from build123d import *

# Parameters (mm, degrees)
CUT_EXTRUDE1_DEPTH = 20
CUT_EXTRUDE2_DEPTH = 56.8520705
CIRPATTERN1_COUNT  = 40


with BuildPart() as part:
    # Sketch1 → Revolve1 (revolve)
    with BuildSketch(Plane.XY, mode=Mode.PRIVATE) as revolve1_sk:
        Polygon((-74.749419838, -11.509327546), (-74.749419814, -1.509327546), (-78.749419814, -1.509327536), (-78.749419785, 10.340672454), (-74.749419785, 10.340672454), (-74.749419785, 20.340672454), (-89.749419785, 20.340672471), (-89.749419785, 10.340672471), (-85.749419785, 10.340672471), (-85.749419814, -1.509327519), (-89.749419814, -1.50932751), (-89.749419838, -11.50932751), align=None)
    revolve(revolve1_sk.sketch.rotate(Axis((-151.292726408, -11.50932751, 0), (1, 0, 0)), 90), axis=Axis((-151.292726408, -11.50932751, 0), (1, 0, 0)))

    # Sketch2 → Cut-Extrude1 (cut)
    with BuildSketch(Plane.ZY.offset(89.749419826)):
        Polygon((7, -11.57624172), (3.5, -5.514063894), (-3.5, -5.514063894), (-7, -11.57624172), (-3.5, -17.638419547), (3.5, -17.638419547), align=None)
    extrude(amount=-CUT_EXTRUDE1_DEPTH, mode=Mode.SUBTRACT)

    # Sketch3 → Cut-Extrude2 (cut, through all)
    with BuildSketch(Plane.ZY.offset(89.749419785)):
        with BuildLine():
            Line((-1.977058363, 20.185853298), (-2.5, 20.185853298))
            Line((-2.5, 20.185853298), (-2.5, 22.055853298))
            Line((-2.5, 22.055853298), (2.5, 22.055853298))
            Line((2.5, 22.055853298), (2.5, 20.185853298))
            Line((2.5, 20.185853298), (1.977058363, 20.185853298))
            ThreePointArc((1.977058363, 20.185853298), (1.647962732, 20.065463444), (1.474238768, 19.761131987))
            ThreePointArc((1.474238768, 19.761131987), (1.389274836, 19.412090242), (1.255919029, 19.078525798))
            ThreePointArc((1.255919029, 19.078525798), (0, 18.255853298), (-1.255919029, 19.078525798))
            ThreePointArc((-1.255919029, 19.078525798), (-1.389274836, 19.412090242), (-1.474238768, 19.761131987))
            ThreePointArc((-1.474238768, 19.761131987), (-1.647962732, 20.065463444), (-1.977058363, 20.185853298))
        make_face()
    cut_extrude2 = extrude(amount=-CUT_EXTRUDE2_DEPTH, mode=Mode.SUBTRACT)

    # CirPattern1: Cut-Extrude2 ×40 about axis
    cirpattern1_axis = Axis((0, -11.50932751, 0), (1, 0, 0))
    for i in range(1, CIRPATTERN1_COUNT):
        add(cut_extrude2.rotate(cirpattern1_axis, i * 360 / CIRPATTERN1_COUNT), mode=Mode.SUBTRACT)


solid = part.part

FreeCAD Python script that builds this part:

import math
import FreeCAD as App
import Part
import Sketcher
Q = App.Units.Quantity


def add_polygon(sketch, points):
    """Adds a closed chain of lines whose ends are joined by coincident constraints."""
    first, n = sketch.GeometryCount, len(points)
    for a, b in zip(points, points[1:] + points[:1]):
        sketch.addGeometry(Part.LineSegment(App.Vector(*a, 0), App.Vector(*b, 0)), False)
    for i in range(n):
        sketch.addConstraint(Sketcher.Constraint("Coincident", first + i, 2, first + (i + 1) % n, 1))

doc = App.newDocument("Part")
body = doc.addObject("PartDesign::Body", "Body")

# Sketch on XY plane
sketch1 = body.newObject("Sketcher::SketchObject", "Sketch")
sketch1.AttachmentSupport = (doc.getObject("XY_Plane"), [""])
sketch1.MapMode = "FlatFace"
add_polygon(sketch1, [(-74.74942, -11.509328), (-74.74942, -1.509328), (-78.74942, -1.509328), (-78.74942, 10.340672), (-74.74942, 10.340672), (-74.74942, 20.340672), (-89.74942, 20.340672), (-89.74942, 10.340672), (-85.74942, 10.340672), (-85.74942, -1.509328), (-89.74942, -1.509328), (-89.74942, -11.509328)])  # lines 0-11
sketch1.addGeometry(Part.LineSegment(App.Vector(-89.74942, -11.509328, 0), App.Vector(-74.74942, -11.509328, 0)), True)  # axis
sketch1.addConstraint(Sketcher.Constraint("Vertical", 0))
sketch1.addConstraint(Sketcher.Constraint("Horizontal", 1))
sketch1.addConstraint(Sketcher.Constraint("Vertical", 2))
sketch1.addConstraint(Sketcher.Constraint("Horizontal", 3))
sketch1.addConstraint(Sketcher.Constraint("Vertical", 4))
sketch1.addConstraint(Sketcher.Constraint("Horizontal", 5))
sketch1.addConstraint(Sketcher.Constraint("Vertical", 6))
sketch1.addConstraint(Sketcher.Constraint("Horizontal", 7))
sketch1.addConstraint(Sketcher.Constraint("Vertical", 8))
sketch1.addConstraint(Sketcher.Constraint("Horizontal", 9))
sketch1.addConstraint(Sketcher.Constraint("Vertical", 10))
sketch1.addConstraint(Sketcher.Constraint("Horizontal", 11))
sketch1.addConstraint(Sketcher.Constraint("Horizontal", 12))
sketch1.addConstraint(Sketcher.Constraint("Coincident", 12, 1, 10, 2))
sketch1.addConstraint(Sketcher.Constraint("Horizontal", 3, 2, 6, 2))
sketch1.addConstraint(Sketcher.Constraint("Horizontal", 1, 2, 8, 2))
sketch1.addConstraint(Sketcher.Constraint("Vertical", 0, 2, 3, 2))
sketch1.addConstraint(Sketcher.Constraint("Vertical", 6, 2, 9, 2))
sketch1.addConstraint(Sketcher.Constraint("Vertical", 4, 2, 12, 2))
sketch1.addConstraint(Sketcher.Constraint("Equal", 3, 7))
sketch1.addConstraint(Sketcher.Constraint("Equal", 0, 4))
sketch1.addConstraint(Sketcher.Constraint("DistanceX", 1, 2, 1, 1, Q("4 mm")))
sketch1.addConstraint(Sketcher.Constraint("DistanceX", 5, 2, 5, 1, Q("15 mm")))
sketch1.addConstraint(Sketcher.Constraint("DistanceY", 0, 1, 0, 2, Q("10 mm")))
sketch1.addConstraint(Sketcher.Constraint("DistanceY", 2, 1, 2, 2, Q("11.85 mm")))
sketch1.addConstraint(Sketcher.Constraint("DistanceX", 0, 2, -1, 1, Q("74.74942 mm")))
sketch1.addConstraint(Sketcher.Constraint("DistanceY", 0, 2, -1, 1, Q("1.509328 mm")))
revolution = body.newObject("PartDesign::Revolution", "Revolution")
revolution.Profile = sketch1
revolution.ReferenceAxis = (sketch1, ["Axis0"])
revolution.Angle = 360

# Sketch on YZ plane
sketch2 = body.newObject("Sketcher::SketchObject", "Sketch001")
sketch2.AttachmentSupport = (doc.getObject("YZ_Plane"), [""])
sketch2.MapMode = "FlatFace"
sketch2.AttachmentOffset = App.Placement(App.Vector(0, 0, -89.74942), App.Rotation())
add_polygon(sketch2, [(-11.576242, 7), (-5.514064, 3.5), (-5.514064, -3.5), (-11.576242, -7), (-17.63842, -3.5), (-17.63842, 3.5)])  # lines 0-5
sketch2.addConstraint(Sketcher.Constraint("Vertical", 1))
sketch2.addConstraint(Sketcher.Constraint("Vertical", 4))
sketch2.addConstraint(Sketcher.Constraint("Symmetric", 2, 2, 5, 2, -1))
sketch2.addConstraint(Sketcher.Constraint("Parallel", 0, 3))
sketch2.addConstraint(Sketcher.Constraint("Parallel", 2, 5))
sketch2.addConstraint(Sketcher.Constraint("Horizontal", 1, 2, 3, 2))
sketch2.addConstraint(Sketcher.Constraint("Horizontal", 0, 2, 4, 2))
sketch2.addConstraint(Sketcher.Constraint("DistanceY", 1, 2, 1, 1, Q("7 mm")))
sketch2.addConstraint(Sketcher.Constraint("Angle", 0, Q("-30 deg")))
sketch2.addConstraint(Sketcher.Constraint("Distance", 0, Q("7 mm")))
sketch2.addConstraint(Sketcher.Constraint("DistanceX", 2, 2, -1, 1, Q("11.576242 mm")))
pocket1 = body.newObject("PartDesign::Pocket", "Pocket")
pocket1.Profile = sketch2
pocket1.Length = 20
pocket1.Reversed = True

# Sketch on YZ plane
sketch3 = body.newObject("Sketcher::SketchObject", "Sketch002")
sketch3.AttachmentSupport = (doc.getObject("YZ_Plane"), [""])
sketch3.MapMode = "FlatFace"
sketch3.AttachmentOffset = App.Placement(App.Vector(0, 0, -89.74942), App.Rotation())
sketch3.addGeometry(Part.LineSegment(App.Vector(20.185853, -2.5, 0), App.Vector(20.185853, -1.977058, 0)), False)
sketch3.addGeometry(Part.ArcOfCircle(Part.Circle(App.Vector(19.675853, -1.977058, 0), App.Vector(0, 0, 1), 0.51), math.radians(0), math.radians(80.374177)), False)
sketch3.addGeometry(Part.ArcOfCircle(Part.Circle(App.Vector(20.185853, 1.03, 0), App.Vector(0, 0, 1), 2.54), math.radians(-115.846123), math.radians(-99.625823)), False)
sketch3.addGeometry(Part.ArcOfCircle(Part.Circle(App.Vector(19.625853, 0, 0), App.Vector(0, 0, 1), 1.37), math.radians(113.547495), math.radians(246.452505)), False)
sketch3.addGeometry(Part.ArcOfCircle(Part.Circle(App.Vector(20.185853, -1.03, 0), App.Vector(0, 0, 1), 2.54), math.radians(99.625823), math.radians(115.846123)), False)
sketch3.addGeometry(Part.ArcOfCircle(Part.Circle(App.Vector(19.675853, 1.977058, 0), App.Vector(0, 0, 1), 0.51), math.radians(-80.374177), math.radians(0)), False)
sketch3.addGeometry(Part.LineSegment(App.Vector(20.185853, 1.977058, 0), App.Vector(20.185853, 2.5, 0)), False)
sketch3.addGeometry(Part.LineSegment(App.Vector(20.185853, 2.5, 0), App.Vector(22.055853, 2.5, 0)), False)
sketch3.addGeometry(Part.LineSegment(App.Vector(22.055853, 2.5, 0), App.Vector(22.055853, -2.5, 0)), False)
sketch3.addGeometry(Part.LineSegment(App.Vector(22.055853, -2.5, 0), App.Vector(20.185853, -2.5, 0)), False)
sketch3.addConstraint(Sketcher.Constraint("Tangent", 0, 2, 1, 1))
sketch3.addConstraint(Sketcher.Constraint("Tangent", 1, 2, 2, 2))
sketch3.addConstraint(Sketcher.Constraint("Coincident", 2, 1, 3, 2))
sketch3.addConstraint(Sketcher.Constraint("Coincident", 3, 1, 4, 2))
sketch3.addConstraint(Sketcher.Constraint("Tangent", 4, 1, 5, 1))
sketch3.addConstraint(Sketcher.Constraint("Tangent", 5, 2, 6, 1))
sketch3.addConstraint(Sketcher.Constraint("Coincident", 6, 2, 7, 1))
sketch3.addConstraint(Sketcher.Constraint("Coincident", 7, 2, 8, 1))
sketch3.addConstraint(Sketcher.Constraint("Coincident", 8, 2, 9, 1))
sketch3.addConstraint(Sketcher.Constraint("Coincident", 9, 2, 0, 1))
sketch3.addConstraint(Sketcher.Constraint("Vertical", 0))
sketch3.addConstraint(Sketcher.Constraint("Vertical", 6))
sketch3.addConstraint(Sketcher.Constraint("Horizontal", 7))
sketch3.addConstraint(Sketcher.Constraint("Vertical", 8))
sketch3.addConstraint(Sketcher.Constraint("Horizontal", 9))
sketch3.addConstraint(Sketcher.Constraint("Equal", 2, 4))
sketch3.addConstraint(Sketcher.Constraint("Equal", 1, 5))
sketch3.addConstraint(Sketcher.Constraint("Symmetric", 2, 3, 4, 3, -1))
sketch3.addConstraint(Sketcher.Constraint("Symmetric", 6, 2, 9, 2, -1))
sketch3.addConstraint(Sketcher.Constraint("PointOnObject", 3, 3, -1))
sketch3.addConstraint(Sketcher.Constraint("Vertical", 4, 3, 0, 2))
sketch3.addConstraint(Sketcher.Constraint("DistanceY", 8, 2, 8, 1, Q("5 mm")))
sketch3.addConstraint(Sketcher.Constraint("Radius", 1, Q("0.51 mm")))
sketch3.addConstraint(Sketcher.Constraint("Radius", 2, Q("2.54 mm")))
sketch3.addConstraint(Sketcher.Constraint("Radius", 3, Q("1.37 mm")))
sketch3.addConstraint(Sketcher.Constraint("DistanceX", 7, 1, 7, 2, Q("1.87 mm")))
sketch3.addConstraint(Sketcher.Constraint("DistanceY", -1, 1, 2, 3, Q("1.03 mm")))
sketch3.addConstraint(Sketcher.Constraint("DistanceX", 3, 3, 2, 3, Q("0.56 mm")))
sketch3.addConstraint(Sketcher.Constraint("DistanceX", -1, 1, 1, 2, Q("19.761132 mm")))
pocket2 = body.newObject("PartDesign::Pocket", "Pocket001")
pocket2.Profile = sketch3
pocket2.Type = "ThroughAll"
pocket2.Reversed = True
doc.recompute()

datumline = body.newObject("PartDesign::Line", "DatumLine")
datumline.Placement = App.Placement(App.Vector(0, -11.509328, 0), App.Rotation(App.Vector(0, 0, 1), App.Vector(1, 0, 0)))
polarpattern = body.newObject("PartDesign::PolarPattern", "PolarPattern")
polarpattern.Originals = [pocket2]
polarpattern.Axis = (datumline, [""])
polarpattern.Angle = 360
polarpattern.Occurrences = 40
body.Tip = polarpattern

doc.recompute()
